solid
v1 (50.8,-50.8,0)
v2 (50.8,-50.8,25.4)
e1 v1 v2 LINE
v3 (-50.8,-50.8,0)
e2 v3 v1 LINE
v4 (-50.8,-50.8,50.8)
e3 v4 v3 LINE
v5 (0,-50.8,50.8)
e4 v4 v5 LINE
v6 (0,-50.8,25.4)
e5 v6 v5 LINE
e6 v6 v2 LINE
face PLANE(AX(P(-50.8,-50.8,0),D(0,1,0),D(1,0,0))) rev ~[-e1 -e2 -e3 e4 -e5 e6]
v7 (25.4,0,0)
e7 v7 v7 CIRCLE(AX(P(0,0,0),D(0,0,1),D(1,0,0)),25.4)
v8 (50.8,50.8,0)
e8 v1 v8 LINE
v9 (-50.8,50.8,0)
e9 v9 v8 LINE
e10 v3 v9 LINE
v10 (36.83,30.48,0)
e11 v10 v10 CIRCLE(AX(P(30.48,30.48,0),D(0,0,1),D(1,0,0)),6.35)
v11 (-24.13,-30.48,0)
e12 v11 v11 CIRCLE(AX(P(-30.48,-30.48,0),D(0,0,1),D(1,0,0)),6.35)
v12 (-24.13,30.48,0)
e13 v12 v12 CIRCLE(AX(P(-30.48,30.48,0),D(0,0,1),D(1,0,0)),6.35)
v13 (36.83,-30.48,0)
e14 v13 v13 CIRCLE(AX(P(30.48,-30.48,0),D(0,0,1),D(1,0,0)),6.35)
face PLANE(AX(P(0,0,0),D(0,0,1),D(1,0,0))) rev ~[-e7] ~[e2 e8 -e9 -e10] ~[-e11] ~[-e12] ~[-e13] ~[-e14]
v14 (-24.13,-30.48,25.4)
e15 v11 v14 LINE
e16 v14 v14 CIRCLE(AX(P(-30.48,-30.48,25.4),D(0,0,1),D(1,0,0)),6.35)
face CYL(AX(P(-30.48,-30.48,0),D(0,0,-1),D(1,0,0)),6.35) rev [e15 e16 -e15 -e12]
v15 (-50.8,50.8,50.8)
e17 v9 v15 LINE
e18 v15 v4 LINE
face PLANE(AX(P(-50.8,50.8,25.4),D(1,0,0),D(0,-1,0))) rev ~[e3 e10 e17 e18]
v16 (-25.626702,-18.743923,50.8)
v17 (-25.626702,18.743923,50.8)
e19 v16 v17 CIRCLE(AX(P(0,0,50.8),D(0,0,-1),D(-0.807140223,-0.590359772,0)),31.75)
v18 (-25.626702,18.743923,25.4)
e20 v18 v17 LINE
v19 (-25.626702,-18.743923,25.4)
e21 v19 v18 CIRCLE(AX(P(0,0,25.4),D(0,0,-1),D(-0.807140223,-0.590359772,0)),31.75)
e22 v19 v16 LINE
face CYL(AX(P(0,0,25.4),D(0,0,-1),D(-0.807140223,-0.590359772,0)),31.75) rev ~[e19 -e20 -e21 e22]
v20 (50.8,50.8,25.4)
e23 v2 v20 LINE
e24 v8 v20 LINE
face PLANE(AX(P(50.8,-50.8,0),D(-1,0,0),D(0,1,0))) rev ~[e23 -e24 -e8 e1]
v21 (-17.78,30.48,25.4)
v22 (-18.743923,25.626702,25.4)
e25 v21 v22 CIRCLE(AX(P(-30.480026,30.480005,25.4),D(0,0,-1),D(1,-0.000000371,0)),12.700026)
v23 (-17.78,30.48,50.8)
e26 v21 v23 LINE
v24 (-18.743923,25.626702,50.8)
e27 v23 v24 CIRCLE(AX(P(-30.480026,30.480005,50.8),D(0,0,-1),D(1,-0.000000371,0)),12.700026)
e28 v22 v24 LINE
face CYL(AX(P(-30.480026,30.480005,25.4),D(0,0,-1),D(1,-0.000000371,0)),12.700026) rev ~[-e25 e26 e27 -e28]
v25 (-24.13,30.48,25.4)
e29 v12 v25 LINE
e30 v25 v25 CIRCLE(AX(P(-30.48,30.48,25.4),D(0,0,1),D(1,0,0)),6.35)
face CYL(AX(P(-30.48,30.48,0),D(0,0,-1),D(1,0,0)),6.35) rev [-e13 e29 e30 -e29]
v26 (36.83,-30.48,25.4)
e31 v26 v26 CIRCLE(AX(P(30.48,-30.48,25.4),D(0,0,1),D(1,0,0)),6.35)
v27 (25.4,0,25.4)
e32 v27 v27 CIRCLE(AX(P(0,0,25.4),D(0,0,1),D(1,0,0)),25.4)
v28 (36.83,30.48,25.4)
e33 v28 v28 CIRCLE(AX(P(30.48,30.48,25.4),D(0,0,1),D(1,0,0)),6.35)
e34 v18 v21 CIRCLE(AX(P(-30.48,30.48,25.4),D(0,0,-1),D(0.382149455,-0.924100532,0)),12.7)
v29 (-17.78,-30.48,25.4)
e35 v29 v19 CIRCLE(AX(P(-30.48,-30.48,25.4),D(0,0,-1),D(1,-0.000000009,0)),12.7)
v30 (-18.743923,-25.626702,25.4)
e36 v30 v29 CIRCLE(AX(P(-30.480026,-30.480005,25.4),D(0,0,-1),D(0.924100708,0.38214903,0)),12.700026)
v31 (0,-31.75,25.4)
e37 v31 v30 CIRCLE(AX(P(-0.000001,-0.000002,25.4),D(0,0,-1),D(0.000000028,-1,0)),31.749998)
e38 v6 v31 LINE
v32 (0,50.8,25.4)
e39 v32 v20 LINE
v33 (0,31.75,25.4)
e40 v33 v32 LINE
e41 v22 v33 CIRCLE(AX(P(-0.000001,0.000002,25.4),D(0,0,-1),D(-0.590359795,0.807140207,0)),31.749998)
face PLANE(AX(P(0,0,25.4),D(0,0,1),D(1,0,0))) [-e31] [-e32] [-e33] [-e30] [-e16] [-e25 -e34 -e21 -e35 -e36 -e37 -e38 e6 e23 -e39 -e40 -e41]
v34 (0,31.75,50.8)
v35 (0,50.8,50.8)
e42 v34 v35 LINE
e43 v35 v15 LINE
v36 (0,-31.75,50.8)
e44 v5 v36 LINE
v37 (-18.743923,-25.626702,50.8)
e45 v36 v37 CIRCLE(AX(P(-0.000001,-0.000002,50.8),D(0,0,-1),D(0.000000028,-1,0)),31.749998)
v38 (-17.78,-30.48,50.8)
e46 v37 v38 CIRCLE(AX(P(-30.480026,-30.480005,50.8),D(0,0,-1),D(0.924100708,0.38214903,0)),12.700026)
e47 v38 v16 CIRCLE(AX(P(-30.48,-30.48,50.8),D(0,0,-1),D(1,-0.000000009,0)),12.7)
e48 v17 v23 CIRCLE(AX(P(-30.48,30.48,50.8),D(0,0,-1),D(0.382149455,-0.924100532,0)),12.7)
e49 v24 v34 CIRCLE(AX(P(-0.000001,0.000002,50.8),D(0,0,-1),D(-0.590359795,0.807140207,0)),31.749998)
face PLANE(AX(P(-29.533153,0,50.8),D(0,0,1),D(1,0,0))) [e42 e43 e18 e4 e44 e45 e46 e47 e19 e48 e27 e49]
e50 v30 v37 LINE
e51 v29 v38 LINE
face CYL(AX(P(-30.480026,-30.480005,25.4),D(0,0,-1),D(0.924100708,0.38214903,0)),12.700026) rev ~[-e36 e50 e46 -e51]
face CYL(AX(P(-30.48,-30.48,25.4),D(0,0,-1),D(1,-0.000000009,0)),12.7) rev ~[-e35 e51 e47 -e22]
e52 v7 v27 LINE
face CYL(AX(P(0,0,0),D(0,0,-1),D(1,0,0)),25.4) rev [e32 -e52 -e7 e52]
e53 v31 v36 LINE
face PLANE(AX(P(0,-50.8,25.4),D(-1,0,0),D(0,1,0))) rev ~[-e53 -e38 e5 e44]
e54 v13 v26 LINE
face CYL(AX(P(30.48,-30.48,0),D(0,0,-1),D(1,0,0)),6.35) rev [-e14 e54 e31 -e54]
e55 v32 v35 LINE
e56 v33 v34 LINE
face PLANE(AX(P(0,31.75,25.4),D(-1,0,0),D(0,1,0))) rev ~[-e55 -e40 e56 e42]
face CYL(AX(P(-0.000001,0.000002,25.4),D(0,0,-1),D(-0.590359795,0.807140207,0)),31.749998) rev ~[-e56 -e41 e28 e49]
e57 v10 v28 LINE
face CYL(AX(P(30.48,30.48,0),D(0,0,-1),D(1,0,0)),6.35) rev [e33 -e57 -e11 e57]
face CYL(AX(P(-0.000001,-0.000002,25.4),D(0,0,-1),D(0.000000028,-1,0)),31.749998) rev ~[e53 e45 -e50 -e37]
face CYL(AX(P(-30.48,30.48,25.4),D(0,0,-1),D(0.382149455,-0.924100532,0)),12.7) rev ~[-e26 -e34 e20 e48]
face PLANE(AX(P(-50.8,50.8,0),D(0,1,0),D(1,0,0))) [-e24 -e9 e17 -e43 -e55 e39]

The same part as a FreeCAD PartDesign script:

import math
import FreeCAD as App
import Part
import Sketcher

V = App.Vector
Q = App.Units.Quantity


def add_polygon(sketch, points):
    """Adds a closed chain of lines whose ends are joined by coincident constraints."""
    first, n = sketch.GeometryCount, len(points)
    for a, b in zip(points, points[1:] + points[:1]):
        sketch.addGeometry(Part.LineSegment(App.Vector(*a, 0), App.Vector(*b, 0)), False)
    for i in range(n):
        sketch.addConstraint(Sketcher.Constraint("Coincident", first + i, 2, first + (i + 1) % n, 1))

doc = App.newDocument("Part")
params = doc.addObject("Spreadsheet::Sheet", "Params")
for row, (alias, value) in enumerate([
    ("sketch1_diameter", "2 in"),
    ("sketch1_diameter2", "0.5 in"),
    ("sketch1_width", "4 in"),
    ("pad1_length", "1 in"),
    ("sketch2_radius", "0.5 in"),
    ("sketch2_width", "2 in"),
    ("sketch2_height", "4 in"),
    ("sketch2_radius2", "1.2499999 in"),
    ("sketch2_radius3", "1.25 in"),
    ("pad2_length", "1 in"),
], start=1):
    params.set(f"A{row}", alias)
    params.set(f"B{row}", "=" + value)
    params.setAlias(f"B{row}", alias)

body = doc.addObject("PartDesign::Body", "Body")

sketch1 = body.newObject("Sketcher::SketchObject", "Sketch")
sketch1.AttachmentSupport = (doc.getObject("XY_Plane"), [""])
sketch1.MapMode = "FlatFace"
add_polygon(sketch1, [(-50.8, 50.8), (-50.8, -50.8), (50.8, -50.8), (50.8, 50.8)])
sketch1.addGeometry(Part.Circle(V(-30.48, -30.48, 0), V(0, 0, 1), 6.35), False)
sketch1.addGeometry(Part.Circle(V(0, 0, 0), V(0, 0, 1), 25.4), False)
sketch1.addGeometry(Part.Circle(V(30.48, -30.48, 0), V(0, 0, 1), 6.35), False)
sketch1.addGeometry(Part.Circle(V(-30.48, 30.48, 0), V(0, 0, 1), 6.35), False)
sketch1.addGeometry(Part.Circle(V(30.48, 30.48, 0), V(0, 0, 1), 6.35), False)
sketch1.addConstraint([
    Sketcher.Constraint("Vertical", 0),
    Sketcher.Constraint("Horizontal", 1),
    Sketcher.Constraint("Vertical", 2),
    Sketcher.Constraint("Horizontal", 3),
    Sketcher.Constraint("Coincident", 5, 3, -1, 1),
    Sketcher.Constraint("Equal", 4, 6),
    Sketcher.Constraint("Equal", 6, 7),
    Sketcher.Constraint("Equal", 7, 8),
    Sketcher.Constraint("Symmetric", 6, 3, 7, 3, -1, 1),
    Sketcher.Constraint("Symmetric", 4, 3, 8, 3, -1, 1),
    Sketcher.Constraint("Symmetric", 0, 2, 2, 2, -1, 1),
    Sketcher.Constraint("Symmetric", 4, 3, 6, 3, -2),
    Sketcher.Constraint("Equal", 3, 0),
    Sketcher.Constraint("Diameter", 5, Q("2 in")),
    Sketcher.Constraint("Diameter", 4, Q("0.5 in")),
    Sketcher.Constraint("DistanceX", 1, 1, 1, 2, Q("4 in")),
    Sketcher.Constraint("DistanceX", 4, 3, -1, 1, Q("1.2 in")),
    Sketcher.Constraint("DistanceY", 4, 3, -1, 1, Q("1.2 in")),
])
sketch1.setExpression("Constraints[17]", "Params.sketch1_diameter")
sketch1.setExpression("Constraints[18]", "Params.sketch1_diameter2")
sketch1.setExpression("Constraints[19]", "Params.sketch1_width")
pad1 = body.newObject("PartDesign::Pad", "Pad")
pad1.Profile = sketch1
pad1.setExpression("Length", "Params.pad1_length")

sketch2 = body.newObject("Sketcher::SketchObject", "Sketch001")
sketch2.AttachmentSupport = (doc.getObject("XY_Plane"), [""])
sketch2.MapMode = "FlatFace"
sketch2.AttachmentOffset = App.Placement(V(0, 0, 1 * 25.4), App.Rotation())
sketch2.addGeometry([
    Part.ArcOfCircle(Part.Circle(V(-30.48, 30.48, 0), V(0, 0, 1), 12.7), math.radians(0.000001), math.radians(292.466889)),
    Part.ArcOfCircle(Part.Circle(V(-30.480026, 30.480005, 0), V(0, 0, 1), 12.700026), math.radians(-22.466862), math.radians(-0.000021)),
    Part.ArcOfCircle(Part.Circle(V(-0.000001, 0.000002, 0), V(0, 0, 1), 31.749998), math.radians(89.999998), math.radians(126.182544)),
    Part.LineSegment(V(0, 31.75, 0), V(0, 50.8, 0)),
    Part.LineSegment(V(0, 50.8, 0), V(-50.8, 50.8, 0)),
    Part.LineSegment(V(-50.8, 50.8, 0), V(-50.8, -50.8, 0)),
    Part.LineSegment(V(-50.8, -50.8, 0), V(0, -50.8, 0)),
    Part.LineSegment(V(0, -50.8, 0), V(0, -31.75, 0)),
    Part.ArcOfCircle(Part.Circle(V(-0.000001, -0.000002, 0), V(0, 0, 1), 31.749998), math.radians(-126.182544), math.radians(-89.999998)),
    Part.ArcOfCircle(Part.Circle(V(-30.480026, -30.480005, 0), V(0, 0, 1), 12.700026), math.radians(0.000021), math.radians(22.466862)),
    Part.ArcOfCircle(Part.Circle(V(-30.48, -30.48, 0), V(0, 0, 1), 12.7), math.radians(67.533111), math.radians(359.999999)),
    Part.ArcOfCircle(Part.Circle(V(0, 0, 0), V(0, 0, 1), 31.75), math.radians(143.817457), math.radians(216.182543)),
], False)
sketch2.addConstraint([
    Sketcher.Constraint("Tangent", 0, 1, 1, 2),
    Sketcher.Constraint("Coincident", 1, 1, 2, 2),
    Sketcher.Constraint("Coincident", 2, 1, 3, 1),
    Sketcher.Constraint("Coincident", 3, 2, 4, 1),
    Sketcher.Constraint("Coincident", 4, 2, 5, 1),
    Sketcher.Constraint("Coincident", 5, 2, 6, 1),
    Sketcher.Constraint("Coincident", 6, 2, 7, 1),
    Sketcher.Constraint("Coincident", 7, 2, 8, 2),
    Sketcher.Constraint("Coincident", 8, 1, 9, 2),
    Sketcher.Constraint("Tangent", 9, 1, 10, 2),
    Sketcher.Constraint("Coincident", 10, 1, 11, 2),
    Sketcher.Constraint("Coincident", 11, 1, 0, 2),
    Sketcher.Constraint("Vertical", 3),
    Sketcher.Constraint("Horizontal", 4),
    Sketcher.Constraint("Vertical", 5),
    Sketcher.Constraint("Horizontal", 6),
    Sketcher.Constraint("Vertical", 7),
    Sketcher.Constraint("Coincident", 2, 3, -1, 1),
    Sketcher.Constraint("Coincident", 8, 3, -1, 1),
    Sketcher.Constraint("Coincident", 11, 3, -1, 1),
    Sketcher.Constraint("Equal", 2, 8),
    Sketcher.Constraint("Equal", 1, 9),
    Sketcher.Constraint("Equal", 0, 10),
    Sketcher.Constraint("Symmetric", 3, 2, 6, 2, -1, 1),
    Sketcher.Constraint("Symmetric", 1, 3, 9, 3, -1),
    Sketcher.Constraint("PointOnObject", 2, 1, -2),
    Sketcher.Constraint("Horizontal", 10, 3, 9, 1),
    Sketcher.Constraint("Radius", 0, Q("0.5 in")),
    Sketcher.Constraint("DistanceX", 4, 2, 4, 1, Q("2 in")),
    Sketcher.Constraint("DistanceY", 5, 2, 5, 1, Q("4 in")),
    Sketcher.Constraint("Radius", 2, Q("1.2499999 in")),
    Sketcher.Constraint("Radius", 11, Q("1.25 in")),
    Sketcher.Constraint("DistanceX", 0, 3, -1, 1, Q("1.2 in")),
    Sketcher.Constraint("DistanceY", -1, 1, 0, 3, Q("1.2 in")),
    Sketcher.Constraint("DistanceY", -1, 1, 0, 1, Q("1.2 in")),
    Sketcher.Constraint("Radius", 1, 12.700026),
])
sketch2.setExpression("Constraints[27]", "Params.sketch2_radius")
sketch2.setExpression("Constraints[28]", "Params.sketch2_width")
sketch2.setExpression("Constraints[29]", "Params.sketch2_height")
sketch2.setExpression("Constraints[30]", "Params.sketch2_radius2")
sketch2.setExpression("Constraints[31]", "Params.sketch2_radius3")
pad2 = body.newObject("PartDesign::Pad", "Pad001")
pad2.Profile = sketch2
pad2.setExpression("Length", "Params.pad2_length")

doc.recompute()
